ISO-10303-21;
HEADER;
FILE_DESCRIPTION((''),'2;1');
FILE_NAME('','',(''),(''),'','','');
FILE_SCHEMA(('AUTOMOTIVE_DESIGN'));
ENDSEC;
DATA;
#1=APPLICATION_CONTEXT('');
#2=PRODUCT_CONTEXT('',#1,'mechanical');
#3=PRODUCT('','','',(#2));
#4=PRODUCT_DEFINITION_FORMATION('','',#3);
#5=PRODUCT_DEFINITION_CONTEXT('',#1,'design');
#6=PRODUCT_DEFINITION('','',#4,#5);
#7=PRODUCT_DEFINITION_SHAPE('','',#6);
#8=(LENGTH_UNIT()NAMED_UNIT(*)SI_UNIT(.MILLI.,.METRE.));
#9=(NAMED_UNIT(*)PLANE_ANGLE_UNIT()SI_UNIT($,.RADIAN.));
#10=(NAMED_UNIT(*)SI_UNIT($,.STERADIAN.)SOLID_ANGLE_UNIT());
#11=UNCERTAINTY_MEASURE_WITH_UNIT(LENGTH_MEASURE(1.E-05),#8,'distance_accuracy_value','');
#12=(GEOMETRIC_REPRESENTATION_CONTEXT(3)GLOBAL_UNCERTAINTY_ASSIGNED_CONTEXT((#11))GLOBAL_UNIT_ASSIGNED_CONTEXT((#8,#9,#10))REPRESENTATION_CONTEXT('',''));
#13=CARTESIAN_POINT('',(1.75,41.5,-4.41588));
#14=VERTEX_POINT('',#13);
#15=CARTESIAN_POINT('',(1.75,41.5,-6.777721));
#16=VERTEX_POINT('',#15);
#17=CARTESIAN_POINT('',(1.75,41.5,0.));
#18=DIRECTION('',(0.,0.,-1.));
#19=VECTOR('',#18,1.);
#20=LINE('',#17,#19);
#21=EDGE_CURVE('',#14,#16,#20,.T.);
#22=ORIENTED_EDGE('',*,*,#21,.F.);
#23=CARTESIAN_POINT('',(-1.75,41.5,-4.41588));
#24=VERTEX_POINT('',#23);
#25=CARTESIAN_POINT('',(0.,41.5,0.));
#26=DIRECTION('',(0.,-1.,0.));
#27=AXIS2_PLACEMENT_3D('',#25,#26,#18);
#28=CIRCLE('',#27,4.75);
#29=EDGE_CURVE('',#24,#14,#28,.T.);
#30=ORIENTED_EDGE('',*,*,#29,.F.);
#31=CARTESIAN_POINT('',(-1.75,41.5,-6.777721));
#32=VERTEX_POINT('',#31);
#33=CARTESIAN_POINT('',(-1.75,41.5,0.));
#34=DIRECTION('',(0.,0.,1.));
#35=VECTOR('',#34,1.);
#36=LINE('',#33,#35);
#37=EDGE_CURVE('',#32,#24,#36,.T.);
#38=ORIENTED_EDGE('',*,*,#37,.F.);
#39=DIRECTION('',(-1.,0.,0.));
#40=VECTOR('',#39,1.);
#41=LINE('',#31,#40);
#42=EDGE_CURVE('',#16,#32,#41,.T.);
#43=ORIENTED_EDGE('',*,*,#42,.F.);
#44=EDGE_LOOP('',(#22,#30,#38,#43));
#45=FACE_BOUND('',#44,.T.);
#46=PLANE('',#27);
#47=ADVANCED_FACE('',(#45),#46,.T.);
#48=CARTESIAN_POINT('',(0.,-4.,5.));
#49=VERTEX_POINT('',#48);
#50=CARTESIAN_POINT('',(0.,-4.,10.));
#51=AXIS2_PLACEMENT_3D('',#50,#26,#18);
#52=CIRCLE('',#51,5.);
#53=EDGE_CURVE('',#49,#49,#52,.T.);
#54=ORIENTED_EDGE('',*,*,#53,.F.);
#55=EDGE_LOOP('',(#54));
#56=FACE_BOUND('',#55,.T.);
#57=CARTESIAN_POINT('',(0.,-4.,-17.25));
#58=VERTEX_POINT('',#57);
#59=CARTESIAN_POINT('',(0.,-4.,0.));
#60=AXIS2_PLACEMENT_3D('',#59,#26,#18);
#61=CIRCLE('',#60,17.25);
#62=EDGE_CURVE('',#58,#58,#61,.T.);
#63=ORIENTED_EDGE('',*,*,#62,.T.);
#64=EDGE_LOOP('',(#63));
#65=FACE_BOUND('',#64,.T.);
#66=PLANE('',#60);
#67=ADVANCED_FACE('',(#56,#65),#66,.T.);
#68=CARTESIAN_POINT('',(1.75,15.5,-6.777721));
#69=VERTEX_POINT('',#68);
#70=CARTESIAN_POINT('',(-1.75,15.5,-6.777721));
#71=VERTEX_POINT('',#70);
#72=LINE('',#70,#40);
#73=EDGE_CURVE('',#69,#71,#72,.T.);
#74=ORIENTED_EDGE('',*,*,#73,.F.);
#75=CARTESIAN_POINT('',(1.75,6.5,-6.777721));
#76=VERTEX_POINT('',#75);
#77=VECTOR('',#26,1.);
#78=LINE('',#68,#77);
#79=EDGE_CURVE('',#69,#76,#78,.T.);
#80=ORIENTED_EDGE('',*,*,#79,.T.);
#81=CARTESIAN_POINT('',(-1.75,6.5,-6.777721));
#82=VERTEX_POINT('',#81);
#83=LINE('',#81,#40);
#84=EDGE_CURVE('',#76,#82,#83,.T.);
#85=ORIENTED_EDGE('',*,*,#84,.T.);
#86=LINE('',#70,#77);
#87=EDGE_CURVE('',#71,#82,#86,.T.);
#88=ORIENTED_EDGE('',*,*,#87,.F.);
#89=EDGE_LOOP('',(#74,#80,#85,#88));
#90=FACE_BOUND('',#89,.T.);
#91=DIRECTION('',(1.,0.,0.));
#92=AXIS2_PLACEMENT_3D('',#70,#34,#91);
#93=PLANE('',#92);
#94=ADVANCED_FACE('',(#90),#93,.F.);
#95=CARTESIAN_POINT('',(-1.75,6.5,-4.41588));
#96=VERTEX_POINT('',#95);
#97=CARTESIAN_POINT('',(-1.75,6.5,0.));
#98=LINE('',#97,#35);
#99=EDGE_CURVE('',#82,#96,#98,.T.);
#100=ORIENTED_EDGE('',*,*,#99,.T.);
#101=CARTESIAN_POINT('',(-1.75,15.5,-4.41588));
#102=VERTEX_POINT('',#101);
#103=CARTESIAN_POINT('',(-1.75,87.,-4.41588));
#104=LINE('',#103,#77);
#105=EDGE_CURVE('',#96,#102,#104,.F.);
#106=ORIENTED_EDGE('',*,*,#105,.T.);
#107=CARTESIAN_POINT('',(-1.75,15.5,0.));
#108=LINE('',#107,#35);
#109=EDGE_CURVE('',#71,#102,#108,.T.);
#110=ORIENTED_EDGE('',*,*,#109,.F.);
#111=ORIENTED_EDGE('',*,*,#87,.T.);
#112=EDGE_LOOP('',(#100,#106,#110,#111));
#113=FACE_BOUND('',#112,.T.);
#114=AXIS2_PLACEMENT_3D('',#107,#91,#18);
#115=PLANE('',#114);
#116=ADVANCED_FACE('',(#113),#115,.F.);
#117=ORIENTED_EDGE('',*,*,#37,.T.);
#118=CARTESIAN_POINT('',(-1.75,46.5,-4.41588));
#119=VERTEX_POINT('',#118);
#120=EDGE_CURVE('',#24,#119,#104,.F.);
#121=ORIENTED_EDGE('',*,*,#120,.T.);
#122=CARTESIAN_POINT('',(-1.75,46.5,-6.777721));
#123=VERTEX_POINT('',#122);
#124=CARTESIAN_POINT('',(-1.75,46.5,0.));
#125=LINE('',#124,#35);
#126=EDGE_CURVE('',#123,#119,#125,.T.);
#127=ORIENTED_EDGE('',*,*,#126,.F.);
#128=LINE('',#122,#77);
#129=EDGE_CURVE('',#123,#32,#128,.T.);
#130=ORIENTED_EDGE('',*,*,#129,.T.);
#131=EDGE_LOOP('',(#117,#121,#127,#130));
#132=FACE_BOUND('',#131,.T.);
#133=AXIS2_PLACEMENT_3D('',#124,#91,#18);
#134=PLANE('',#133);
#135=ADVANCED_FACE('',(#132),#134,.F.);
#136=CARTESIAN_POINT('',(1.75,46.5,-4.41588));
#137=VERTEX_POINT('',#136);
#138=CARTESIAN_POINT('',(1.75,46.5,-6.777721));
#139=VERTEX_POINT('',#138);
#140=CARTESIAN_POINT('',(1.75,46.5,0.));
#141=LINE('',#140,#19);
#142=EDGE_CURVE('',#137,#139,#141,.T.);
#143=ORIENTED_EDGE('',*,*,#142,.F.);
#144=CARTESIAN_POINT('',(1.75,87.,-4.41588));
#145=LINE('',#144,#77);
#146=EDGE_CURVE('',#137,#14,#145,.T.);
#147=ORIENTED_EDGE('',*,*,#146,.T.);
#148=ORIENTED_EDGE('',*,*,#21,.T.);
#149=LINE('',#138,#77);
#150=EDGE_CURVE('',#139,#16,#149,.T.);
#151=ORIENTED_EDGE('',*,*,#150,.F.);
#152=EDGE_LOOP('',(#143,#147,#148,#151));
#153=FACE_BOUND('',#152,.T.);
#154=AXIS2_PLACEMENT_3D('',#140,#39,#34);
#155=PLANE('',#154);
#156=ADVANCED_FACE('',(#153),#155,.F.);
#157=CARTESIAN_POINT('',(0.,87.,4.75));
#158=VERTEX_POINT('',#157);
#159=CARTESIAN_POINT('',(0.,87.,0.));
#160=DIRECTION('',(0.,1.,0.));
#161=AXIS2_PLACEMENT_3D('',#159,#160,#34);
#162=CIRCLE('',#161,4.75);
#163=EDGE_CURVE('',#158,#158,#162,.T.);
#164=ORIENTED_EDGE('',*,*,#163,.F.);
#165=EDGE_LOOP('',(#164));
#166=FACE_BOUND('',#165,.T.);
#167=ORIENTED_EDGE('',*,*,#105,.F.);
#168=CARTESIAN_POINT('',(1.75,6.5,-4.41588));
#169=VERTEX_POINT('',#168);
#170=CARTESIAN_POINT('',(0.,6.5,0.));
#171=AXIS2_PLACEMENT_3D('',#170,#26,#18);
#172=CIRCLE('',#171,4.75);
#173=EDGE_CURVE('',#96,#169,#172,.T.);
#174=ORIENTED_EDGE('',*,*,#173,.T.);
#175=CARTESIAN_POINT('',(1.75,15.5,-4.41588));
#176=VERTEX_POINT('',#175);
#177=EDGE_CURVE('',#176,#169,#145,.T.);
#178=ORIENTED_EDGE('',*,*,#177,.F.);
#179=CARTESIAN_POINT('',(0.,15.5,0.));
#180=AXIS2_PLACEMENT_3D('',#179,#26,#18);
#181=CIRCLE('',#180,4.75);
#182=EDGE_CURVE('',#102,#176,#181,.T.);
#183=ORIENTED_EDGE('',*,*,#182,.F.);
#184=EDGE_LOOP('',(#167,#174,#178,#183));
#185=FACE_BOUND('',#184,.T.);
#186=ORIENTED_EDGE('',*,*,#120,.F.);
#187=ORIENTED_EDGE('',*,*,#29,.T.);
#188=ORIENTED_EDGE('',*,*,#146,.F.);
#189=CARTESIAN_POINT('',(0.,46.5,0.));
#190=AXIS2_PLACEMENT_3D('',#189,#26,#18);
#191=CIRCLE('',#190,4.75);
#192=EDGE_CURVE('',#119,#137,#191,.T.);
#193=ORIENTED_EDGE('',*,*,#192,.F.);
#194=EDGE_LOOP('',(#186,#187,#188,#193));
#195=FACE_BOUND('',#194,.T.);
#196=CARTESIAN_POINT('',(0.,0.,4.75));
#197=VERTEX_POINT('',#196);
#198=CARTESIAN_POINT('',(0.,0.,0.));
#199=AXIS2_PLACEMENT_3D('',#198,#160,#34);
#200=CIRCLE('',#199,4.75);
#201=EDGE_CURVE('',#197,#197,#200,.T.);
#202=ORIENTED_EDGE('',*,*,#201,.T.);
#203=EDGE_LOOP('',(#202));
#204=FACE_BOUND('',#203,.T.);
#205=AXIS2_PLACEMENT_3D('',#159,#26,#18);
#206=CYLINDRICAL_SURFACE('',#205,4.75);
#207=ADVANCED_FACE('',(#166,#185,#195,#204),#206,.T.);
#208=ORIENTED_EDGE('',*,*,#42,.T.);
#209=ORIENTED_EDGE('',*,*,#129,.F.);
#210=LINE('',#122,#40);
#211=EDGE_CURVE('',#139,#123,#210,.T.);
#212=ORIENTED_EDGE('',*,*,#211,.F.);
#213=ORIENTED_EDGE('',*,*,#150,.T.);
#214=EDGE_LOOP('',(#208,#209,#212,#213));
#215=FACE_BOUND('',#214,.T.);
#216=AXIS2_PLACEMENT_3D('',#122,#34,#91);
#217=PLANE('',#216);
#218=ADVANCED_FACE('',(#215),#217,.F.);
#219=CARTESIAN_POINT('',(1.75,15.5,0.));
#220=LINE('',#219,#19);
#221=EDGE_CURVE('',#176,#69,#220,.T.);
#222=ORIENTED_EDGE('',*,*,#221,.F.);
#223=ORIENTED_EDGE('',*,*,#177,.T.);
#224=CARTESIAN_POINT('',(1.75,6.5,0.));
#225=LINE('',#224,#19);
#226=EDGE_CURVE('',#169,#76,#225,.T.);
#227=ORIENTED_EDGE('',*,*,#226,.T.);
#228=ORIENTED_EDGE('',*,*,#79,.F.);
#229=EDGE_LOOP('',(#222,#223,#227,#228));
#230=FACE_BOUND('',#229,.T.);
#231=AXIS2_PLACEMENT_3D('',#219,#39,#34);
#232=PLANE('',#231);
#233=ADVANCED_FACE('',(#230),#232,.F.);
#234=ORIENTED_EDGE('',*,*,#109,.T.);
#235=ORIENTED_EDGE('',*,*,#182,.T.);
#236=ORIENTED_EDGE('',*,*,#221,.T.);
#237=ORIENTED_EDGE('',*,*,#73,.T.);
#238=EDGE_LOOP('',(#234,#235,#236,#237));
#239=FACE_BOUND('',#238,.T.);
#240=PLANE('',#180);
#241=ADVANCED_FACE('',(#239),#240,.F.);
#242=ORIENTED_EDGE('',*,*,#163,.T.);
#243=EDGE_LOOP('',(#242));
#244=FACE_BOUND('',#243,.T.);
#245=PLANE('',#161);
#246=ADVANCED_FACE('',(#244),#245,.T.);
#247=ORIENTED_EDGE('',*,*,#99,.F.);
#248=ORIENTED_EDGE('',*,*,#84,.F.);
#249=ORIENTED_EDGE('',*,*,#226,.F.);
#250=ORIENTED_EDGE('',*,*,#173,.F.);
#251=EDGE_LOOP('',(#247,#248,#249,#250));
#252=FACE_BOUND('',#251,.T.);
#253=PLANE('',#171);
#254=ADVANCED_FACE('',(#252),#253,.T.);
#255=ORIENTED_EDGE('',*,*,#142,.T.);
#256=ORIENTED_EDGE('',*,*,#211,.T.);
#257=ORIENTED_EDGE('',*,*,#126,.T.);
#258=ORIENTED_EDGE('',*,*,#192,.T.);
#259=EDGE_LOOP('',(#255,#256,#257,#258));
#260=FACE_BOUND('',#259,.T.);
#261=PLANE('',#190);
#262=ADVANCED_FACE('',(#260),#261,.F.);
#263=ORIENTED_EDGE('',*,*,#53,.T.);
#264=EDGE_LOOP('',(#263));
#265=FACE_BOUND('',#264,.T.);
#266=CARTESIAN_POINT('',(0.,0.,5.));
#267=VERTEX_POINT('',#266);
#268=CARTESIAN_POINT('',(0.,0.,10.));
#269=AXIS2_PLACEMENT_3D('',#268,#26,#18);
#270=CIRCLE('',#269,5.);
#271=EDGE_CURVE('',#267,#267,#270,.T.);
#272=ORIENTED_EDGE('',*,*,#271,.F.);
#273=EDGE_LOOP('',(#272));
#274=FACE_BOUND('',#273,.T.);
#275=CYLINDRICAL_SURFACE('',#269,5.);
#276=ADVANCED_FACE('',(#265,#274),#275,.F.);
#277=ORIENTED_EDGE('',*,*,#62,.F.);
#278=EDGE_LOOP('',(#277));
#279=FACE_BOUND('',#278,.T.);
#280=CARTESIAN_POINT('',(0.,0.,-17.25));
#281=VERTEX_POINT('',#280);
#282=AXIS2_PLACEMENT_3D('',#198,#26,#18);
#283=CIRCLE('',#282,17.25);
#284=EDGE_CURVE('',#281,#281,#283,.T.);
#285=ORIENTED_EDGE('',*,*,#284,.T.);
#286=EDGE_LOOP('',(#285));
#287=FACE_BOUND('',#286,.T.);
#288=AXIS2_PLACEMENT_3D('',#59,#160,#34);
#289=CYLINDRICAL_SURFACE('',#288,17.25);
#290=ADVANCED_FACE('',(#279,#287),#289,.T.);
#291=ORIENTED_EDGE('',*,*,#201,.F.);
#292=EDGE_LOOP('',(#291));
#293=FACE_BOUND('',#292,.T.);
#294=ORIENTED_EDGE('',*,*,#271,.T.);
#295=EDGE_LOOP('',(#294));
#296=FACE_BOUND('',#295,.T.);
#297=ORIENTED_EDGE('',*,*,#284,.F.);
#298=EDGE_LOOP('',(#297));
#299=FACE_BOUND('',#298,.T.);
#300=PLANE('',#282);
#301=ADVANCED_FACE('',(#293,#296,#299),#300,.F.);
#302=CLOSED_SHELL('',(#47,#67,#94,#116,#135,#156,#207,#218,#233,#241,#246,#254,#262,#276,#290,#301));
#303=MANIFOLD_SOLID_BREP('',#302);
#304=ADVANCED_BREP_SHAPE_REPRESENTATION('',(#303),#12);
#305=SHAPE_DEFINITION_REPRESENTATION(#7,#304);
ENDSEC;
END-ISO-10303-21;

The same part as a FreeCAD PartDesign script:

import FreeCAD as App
import Part
import Sketcher


def add_polygon(sketch, points):
    """Adds a closed chain of lines whose ends are joined by coincident constraints."""
    first, n = sketch.GeometryCount, len(points)
    for a, b in zip(points, points[1:] + points[:1]):
        sketch.addGeometry(Part.LineSegment(App.Vector(*a, 0), App.Vector(*b, 0)), False)
    for i in range(n):
        sketch.addConstraint(Sketcher.Constraint("Coincident", first + i, 2, first + (i + 1) % n, 1))

doc = App.newDocument("Part")
body = doc.addObject("PartDesign::Body", "Body")

# Sketch on XZ plane
sketch1 = body.newObject("Sketcher::SketchObject", "Sketch")
sketch1.AttachmentSupport = (doc.getObject("XZ_Plane"), [""])
sketch1.MapMode = "FlatFace"
sketch1.addGeometry(Part.Circle(App.Vector(0, 0, 0), App.Vector(0, 0, 1), 4.8), False)
sketch1.addConstraint([
    Sketcher.Constraint("Coincident", 0, 3, -1, 1),
    Sketcher.Constraint("Diameter", 0, 9.5),
])
pad1 = body.newObject("PartDesign::Pad", "Pad")
pad1.Profile = sketch1
pad1.Length = 87
pad1.Reversed = True

# Sketch on XZ plane
sketch2 = body.newObject("Sketcher::SketchObject", "Sketch001")
sketch2.AttachmentSupport = (doc.getObject("XZ_Plane"), [""])
sketch2.MapMode = "FlatFace"
sketch2.addGeometry(Part.Circle(App.Vector(0, 0, 0), App.Vector(0, 0, 1), 17), False)
sketch2.addConstraint([
    Sketcher.Constraint("Coincident", 0, 3, -1, 1),
    Sketcher.Constraint("Diameter", 0, 34.5),
])
pad2 = body.newObject("PartDesign::Pad", "Pad001")
pad2.Profile = sketch2
pad2.Length = 4

# Sketch on XZ plane
sketch3 = body.newObject("Sketcher::SketchObject", "Sketch002")
sketch3.AttachmentSupport = (doc.getObject("XZ_Plane"), [""])
sketch3.MapMode = "FlatFace"
sketch3.AttachmentOffset = App.Placement(App.Vector(0, 0, 4), App.Rotation())
sketch3.addGeometry(Part.Circle(App.Vector(0, 10, 0), App.Vector(0, 0, 1), 5), False)
sketch3.addConstraint([
    Sketcher.Constraint("PointOnObject", 0, 3, -2),
    Sketcher.Constraint("Diameter", 0, 10.0),
    Sketcher.Constraint("DistanceY", -1, 1, 0, 3, 10.0),
])
pocket1 = body.newObject("PartDesign::Pocket", "Pocket")
pocket1.Profile = sketch3
pocket1.Length = 4

# Sketch on XZ plane
sketch4 = body.newObject("Sketcher::SketchObject", "Sketch003")
sketch4.AttachmentSupport = (doc.getObject("XZ_Plane"), [""])
sketch4.MapMode = "FlatFace"
sketch4.AttachmentOffset = App.Placement(App.Vector(0, 0, -6.5), App.Rotation())
add_polygon(sketch4, [(-1.8, -6.8), (-1.8, 0), (1.8, 0), (1.8, -6.8)])  # lines 0-3
sketch4.addConstraint([
    Sketcher.Constraint("Vertical", 0),
    Sketcher.Constraint("Horizontal", 1),
    Sketcher.Constraint("Vertical", 2),
    Sketcher.Constraint("Horizontal", 3),
    Sketcher.Constraint("Symmetric", 0, 2, 1, 2, -1, 1),
    Sketcher.Constraint("DistanceX", 1, 1, 1, 2, 3.5),
    Sketcher.Constraint("DistanceY", 0, 1, 0, 2, 6.777721),
])
pad3 = body.newObject("PartDesign::Pad", "Pad002")
pad3.Profile = sketch4
pad3.Length = 9
pad3.Reversed = True

# Sketch on XZ plane
sketch5 = body.newObject("Sketcher::SketchObject", "Sketch004")
sketch5.AttachmentSupport = (doc.getObject("XZ_Plane"), [""])
sketch5.MapMode = "FlatFace"
sketch5.AttachmentOffset = App.Placement(App.Vector(0, 0, -41.5), App.Rotation())
add_polygon(sketch5, [(-1.8, -6.8), (-1.8, 0), (1.8, 0), (1.8, -6.8)])  # lines 0-3
sketch5.addConstraint([
    Sketcher.Constraint("Vertical", 0),
    Sketcher.Constraint("Horizontal", 1),
    Sketcher.Constraint("Vertical", 2),
    Sketcher.Constraint("Horizontal", 3),
    Sketcher.Constraint("Symmetric", 0, 2, 1, 2, -1, 1),
    Sketcher.Constraint("DistanceX", 1, 1, 1, 2, 3.5),
    Sketcher.Constraint("DistanceY", 0, 1, 0, 2, 6.777721),
])
pad4 = body.newObject("PartDesign::Pad", "Pad003")
pad4.Profile = sketch5
pad4.Length = 5
pad4.Reversed = True

doc.recompute()
